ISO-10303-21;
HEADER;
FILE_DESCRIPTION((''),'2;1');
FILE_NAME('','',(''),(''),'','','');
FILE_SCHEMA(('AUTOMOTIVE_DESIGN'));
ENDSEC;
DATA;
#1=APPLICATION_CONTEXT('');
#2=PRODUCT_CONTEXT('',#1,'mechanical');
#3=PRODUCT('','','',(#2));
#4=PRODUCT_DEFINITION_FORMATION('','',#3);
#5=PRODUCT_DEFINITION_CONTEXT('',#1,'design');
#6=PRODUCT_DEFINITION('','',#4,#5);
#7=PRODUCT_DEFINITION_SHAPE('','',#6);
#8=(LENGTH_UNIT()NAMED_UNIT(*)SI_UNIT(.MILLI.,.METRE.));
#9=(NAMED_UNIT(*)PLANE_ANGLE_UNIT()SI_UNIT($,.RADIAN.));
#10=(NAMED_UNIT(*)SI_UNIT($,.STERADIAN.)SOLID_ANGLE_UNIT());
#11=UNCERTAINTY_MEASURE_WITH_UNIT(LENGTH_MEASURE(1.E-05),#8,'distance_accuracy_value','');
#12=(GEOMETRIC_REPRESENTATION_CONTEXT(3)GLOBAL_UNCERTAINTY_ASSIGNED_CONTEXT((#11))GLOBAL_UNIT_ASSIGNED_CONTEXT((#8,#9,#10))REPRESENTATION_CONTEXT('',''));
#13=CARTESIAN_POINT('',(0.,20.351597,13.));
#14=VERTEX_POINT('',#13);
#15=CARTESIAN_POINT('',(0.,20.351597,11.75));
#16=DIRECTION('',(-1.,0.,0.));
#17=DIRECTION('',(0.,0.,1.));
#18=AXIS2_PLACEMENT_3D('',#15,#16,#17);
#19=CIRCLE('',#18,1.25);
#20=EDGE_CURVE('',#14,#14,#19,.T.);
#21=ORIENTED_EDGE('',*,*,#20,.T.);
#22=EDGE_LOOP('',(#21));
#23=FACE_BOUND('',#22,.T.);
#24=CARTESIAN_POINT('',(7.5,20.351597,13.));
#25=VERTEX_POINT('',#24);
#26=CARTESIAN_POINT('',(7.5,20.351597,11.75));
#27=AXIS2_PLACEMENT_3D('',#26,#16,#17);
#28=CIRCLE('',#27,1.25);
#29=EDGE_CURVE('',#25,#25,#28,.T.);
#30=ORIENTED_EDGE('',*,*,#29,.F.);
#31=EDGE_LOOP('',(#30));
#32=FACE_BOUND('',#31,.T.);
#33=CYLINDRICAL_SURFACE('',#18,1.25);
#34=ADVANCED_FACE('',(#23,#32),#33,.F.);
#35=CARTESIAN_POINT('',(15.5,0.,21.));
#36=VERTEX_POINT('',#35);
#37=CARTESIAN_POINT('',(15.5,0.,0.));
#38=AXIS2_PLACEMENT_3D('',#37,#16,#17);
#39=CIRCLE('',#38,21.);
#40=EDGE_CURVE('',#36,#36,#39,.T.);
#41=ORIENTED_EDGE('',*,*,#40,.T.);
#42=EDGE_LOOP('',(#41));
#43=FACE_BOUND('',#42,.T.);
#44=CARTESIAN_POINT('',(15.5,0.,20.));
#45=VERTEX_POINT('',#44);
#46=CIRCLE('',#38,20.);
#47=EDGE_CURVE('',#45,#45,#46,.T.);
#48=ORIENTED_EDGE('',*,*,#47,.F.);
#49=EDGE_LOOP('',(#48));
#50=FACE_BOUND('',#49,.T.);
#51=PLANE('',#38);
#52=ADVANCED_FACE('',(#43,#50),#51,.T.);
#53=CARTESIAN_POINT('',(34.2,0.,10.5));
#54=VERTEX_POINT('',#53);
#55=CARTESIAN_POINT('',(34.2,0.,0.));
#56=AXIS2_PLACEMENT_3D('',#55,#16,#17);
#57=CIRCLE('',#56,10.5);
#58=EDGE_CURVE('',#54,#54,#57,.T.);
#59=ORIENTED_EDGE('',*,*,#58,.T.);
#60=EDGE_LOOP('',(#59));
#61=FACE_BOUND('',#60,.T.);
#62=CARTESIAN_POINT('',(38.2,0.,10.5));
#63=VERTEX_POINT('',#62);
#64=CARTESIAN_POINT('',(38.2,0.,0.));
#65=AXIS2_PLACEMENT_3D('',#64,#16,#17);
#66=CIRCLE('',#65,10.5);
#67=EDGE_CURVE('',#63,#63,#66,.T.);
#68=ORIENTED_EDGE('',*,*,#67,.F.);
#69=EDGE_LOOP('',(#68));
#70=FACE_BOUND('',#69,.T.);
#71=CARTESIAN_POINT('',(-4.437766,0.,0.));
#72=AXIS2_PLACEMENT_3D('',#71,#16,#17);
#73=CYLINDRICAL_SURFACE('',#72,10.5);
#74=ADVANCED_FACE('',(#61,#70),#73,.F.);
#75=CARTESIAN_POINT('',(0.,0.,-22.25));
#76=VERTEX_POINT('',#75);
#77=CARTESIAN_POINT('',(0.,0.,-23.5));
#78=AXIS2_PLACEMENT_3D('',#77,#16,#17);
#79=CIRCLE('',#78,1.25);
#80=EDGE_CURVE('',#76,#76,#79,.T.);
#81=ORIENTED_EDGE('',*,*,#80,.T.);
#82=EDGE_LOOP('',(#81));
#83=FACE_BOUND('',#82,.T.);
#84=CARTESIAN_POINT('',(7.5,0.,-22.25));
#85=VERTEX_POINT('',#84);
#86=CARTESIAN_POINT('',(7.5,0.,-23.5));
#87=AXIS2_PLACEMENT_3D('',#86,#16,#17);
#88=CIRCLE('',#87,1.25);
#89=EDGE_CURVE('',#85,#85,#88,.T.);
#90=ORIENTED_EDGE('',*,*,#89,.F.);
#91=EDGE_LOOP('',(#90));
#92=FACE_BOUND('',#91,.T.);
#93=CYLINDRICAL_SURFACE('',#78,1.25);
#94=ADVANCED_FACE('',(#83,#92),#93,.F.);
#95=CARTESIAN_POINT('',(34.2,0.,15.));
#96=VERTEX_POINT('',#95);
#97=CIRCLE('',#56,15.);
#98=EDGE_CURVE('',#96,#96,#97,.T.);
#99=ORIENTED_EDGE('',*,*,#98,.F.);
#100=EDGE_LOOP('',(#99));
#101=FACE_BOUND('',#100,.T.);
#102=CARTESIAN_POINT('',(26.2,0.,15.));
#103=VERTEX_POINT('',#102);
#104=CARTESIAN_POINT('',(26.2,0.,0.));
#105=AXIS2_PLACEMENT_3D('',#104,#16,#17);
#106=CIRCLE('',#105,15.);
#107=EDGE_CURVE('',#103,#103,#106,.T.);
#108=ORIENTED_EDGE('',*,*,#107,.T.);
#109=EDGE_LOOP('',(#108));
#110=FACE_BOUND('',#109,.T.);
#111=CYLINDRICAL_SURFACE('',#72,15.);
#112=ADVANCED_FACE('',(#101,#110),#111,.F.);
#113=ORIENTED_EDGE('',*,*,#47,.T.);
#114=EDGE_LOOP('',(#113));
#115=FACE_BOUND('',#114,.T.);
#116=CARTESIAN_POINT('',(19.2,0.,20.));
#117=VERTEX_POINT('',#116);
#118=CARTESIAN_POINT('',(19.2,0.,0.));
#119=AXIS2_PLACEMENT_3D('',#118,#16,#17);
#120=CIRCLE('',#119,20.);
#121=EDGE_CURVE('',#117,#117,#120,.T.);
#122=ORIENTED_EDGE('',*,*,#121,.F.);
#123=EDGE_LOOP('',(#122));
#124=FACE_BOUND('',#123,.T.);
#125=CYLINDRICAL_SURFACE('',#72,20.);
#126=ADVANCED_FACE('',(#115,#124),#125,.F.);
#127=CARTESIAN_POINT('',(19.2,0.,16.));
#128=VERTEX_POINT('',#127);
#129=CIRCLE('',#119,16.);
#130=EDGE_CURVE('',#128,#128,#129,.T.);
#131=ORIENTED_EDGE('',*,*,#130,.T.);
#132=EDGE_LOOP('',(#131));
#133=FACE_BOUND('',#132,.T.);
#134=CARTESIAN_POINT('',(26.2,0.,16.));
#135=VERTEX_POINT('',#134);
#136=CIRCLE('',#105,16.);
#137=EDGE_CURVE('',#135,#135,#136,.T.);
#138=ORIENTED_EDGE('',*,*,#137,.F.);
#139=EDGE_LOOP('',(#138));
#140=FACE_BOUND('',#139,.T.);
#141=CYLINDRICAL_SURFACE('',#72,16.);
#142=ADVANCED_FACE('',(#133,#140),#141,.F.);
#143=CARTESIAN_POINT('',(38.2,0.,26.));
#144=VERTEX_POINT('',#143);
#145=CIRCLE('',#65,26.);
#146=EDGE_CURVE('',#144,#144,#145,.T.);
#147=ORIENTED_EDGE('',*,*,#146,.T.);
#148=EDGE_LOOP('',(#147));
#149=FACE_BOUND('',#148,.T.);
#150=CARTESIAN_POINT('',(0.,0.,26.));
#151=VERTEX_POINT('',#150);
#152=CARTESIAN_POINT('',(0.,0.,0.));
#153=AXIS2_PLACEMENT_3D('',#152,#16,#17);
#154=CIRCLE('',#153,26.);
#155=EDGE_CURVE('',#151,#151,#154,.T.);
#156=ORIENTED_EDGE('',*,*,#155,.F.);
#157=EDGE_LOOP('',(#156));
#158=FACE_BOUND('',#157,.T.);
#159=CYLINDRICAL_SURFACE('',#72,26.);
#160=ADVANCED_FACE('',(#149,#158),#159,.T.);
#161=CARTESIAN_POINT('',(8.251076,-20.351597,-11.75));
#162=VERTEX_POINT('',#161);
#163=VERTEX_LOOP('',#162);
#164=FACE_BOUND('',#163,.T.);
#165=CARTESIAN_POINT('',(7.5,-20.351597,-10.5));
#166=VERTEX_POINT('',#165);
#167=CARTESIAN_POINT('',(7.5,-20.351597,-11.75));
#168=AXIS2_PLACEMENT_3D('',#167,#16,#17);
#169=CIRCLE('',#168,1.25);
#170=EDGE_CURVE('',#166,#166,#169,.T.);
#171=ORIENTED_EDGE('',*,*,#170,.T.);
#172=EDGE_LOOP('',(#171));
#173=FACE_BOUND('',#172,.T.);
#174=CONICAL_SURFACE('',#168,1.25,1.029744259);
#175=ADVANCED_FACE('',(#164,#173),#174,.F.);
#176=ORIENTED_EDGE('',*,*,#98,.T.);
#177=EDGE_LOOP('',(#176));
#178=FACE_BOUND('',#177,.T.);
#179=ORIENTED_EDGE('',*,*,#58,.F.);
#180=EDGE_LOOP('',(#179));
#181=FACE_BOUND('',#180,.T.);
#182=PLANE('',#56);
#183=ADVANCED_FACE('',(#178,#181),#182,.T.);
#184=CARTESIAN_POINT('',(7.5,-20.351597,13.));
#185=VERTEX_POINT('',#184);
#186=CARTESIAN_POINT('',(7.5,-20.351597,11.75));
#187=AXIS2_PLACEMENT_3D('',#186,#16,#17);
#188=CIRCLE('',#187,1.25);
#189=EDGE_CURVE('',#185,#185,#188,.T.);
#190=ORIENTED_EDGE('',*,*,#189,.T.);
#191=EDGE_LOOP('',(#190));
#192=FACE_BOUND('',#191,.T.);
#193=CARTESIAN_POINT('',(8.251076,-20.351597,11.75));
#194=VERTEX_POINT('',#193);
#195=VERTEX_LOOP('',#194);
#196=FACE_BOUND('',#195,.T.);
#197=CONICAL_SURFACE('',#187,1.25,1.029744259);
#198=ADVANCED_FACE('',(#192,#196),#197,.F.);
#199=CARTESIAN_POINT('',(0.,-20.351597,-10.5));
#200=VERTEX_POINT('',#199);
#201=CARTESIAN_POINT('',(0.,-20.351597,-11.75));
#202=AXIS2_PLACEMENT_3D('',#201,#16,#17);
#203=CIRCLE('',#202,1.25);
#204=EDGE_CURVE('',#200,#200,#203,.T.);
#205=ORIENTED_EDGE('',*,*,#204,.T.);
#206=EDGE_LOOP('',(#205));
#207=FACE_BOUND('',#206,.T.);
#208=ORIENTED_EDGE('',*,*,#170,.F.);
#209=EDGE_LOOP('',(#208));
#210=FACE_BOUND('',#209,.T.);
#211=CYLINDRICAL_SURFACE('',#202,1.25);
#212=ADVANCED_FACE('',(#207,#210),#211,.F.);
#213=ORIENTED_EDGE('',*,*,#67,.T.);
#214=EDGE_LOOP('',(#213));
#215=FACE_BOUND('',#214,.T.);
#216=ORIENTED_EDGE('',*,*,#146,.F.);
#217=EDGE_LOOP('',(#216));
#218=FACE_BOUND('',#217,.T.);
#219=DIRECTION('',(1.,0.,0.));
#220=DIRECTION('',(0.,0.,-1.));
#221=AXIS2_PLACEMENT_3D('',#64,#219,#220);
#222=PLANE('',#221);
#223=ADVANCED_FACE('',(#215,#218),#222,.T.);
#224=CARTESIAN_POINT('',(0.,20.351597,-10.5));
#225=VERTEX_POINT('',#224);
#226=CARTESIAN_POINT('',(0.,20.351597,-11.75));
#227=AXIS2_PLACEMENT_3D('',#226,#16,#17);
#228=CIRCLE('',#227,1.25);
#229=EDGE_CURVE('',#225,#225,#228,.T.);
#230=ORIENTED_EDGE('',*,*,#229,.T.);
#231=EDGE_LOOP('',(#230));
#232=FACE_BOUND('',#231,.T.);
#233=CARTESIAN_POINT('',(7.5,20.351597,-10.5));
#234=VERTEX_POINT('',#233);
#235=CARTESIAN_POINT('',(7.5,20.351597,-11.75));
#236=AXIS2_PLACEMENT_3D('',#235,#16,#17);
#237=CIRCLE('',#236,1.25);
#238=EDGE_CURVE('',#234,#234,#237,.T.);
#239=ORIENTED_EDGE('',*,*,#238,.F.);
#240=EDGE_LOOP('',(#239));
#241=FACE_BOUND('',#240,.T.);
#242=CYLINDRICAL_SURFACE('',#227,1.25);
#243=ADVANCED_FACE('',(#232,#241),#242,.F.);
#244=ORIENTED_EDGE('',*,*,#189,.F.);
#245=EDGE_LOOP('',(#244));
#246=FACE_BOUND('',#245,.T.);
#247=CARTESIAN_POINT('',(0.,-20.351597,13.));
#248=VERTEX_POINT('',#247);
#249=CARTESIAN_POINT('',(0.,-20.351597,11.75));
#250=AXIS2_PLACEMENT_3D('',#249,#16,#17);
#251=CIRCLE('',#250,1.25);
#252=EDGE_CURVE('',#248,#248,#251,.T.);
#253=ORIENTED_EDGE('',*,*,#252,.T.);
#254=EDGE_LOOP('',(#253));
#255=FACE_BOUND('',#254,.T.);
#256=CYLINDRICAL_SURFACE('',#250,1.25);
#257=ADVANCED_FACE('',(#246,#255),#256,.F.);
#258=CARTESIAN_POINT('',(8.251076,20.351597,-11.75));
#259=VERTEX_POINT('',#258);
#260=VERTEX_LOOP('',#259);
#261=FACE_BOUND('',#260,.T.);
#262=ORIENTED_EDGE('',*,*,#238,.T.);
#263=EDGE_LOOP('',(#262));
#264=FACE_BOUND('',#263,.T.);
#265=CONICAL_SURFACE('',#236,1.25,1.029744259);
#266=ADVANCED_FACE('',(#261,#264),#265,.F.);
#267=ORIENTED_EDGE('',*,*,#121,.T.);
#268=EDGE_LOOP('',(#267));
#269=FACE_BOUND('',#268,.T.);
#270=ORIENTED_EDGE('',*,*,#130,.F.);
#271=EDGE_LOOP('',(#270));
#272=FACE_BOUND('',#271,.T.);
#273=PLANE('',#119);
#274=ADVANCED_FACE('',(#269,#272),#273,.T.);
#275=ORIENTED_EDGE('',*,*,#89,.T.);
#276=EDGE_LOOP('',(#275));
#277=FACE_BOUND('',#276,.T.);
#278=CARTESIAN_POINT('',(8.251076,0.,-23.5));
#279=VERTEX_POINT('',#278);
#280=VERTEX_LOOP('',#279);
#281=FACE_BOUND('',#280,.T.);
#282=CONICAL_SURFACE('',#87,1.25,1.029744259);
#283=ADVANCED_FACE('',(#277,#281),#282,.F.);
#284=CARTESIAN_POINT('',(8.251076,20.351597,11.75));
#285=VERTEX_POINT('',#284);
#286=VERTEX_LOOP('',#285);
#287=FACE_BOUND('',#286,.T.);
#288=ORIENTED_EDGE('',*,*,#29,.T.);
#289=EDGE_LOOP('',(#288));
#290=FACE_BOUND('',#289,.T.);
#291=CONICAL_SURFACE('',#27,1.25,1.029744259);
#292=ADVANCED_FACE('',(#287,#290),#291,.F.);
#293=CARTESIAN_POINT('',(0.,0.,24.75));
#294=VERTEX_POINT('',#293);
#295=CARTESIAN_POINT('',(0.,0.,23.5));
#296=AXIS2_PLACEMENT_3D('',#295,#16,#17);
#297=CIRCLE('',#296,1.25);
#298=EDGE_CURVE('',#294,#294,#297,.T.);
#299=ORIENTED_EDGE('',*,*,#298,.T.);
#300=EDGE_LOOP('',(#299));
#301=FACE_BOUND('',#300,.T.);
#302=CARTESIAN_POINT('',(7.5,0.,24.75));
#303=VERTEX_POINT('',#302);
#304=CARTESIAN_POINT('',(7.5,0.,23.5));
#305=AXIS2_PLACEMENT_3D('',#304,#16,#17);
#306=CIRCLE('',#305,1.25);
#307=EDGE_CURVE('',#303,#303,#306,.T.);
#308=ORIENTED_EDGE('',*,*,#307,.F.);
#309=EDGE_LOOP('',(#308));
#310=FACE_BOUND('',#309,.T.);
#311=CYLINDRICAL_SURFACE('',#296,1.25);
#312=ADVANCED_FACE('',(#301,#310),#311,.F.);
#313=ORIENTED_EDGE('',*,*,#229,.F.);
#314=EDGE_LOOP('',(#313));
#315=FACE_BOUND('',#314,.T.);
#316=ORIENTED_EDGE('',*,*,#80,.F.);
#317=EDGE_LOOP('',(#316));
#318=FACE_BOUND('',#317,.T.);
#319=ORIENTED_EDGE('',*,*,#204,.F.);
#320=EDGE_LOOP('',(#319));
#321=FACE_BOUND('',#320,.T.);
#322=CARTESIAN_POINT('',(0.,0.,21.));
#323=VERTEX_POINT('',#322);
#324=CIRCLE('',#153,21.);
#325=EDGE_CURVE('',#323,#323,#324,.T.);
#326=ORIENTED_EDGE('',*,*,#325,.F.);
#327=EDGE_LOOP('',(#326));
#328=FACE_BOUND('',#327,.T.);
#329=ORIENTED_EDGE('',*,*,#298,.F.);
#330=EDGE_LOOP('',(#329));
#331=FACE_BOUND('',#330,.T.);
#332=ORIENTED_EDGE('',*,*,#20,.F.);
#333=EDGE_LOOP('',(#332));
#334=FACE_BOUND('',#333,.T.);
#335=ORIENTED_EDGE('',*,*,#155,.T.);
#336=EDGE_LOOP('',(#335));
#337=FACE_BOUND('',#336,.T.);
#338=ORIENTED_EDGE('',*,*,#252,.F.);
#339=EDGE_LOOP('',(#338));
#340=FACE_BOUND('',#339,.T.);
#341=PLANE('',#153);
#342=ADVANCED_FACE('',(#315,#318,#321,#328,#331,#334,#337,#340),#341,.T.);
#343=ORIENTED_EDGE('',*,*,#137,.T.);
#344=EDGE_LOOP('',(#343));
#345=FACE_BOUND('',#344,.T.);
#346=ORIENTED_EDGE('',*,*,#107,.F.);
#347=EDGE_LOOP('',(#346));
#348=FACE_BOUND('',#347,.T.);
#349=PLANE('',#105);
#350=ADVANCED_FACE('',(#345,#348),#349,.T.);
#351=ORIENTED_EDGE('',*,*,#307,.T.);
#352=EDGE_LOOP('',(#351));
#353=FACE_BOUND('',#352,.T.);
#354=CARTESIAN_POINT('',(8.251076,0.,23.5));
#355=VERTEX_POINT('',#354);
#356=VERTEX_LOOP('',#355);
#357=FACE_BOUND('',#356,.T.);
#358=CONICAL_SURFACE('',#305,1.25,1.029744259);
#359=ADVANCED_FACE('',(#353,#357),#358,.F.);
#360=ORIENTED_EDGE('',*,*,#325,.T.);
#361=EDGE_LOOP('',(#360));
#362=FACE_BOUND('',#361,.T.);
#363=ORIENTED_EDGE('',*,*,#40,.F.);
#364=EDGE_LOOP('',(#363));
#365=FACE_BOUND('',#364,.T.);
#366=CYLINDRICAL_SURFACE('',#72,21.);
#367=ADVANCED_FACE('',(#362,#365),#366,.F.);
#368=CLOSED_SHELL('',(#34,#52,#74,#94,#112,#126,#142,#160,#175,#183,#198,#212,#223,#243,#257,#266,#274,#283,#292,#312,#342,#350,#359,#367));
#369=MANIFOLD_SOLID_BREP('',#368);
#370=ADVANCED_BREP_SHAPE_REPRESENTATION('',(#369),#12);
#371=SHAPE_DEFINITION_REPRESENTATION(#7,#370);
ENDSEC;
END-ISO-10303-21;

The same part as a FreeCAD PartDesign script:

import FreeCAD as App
import Part
import Sketcher
from FreeCAD import Vector
Q = App.Units.Quantity


def add_polygon(sketch, points):
    """Adds a closed chain of lines whose ends are joined by coincident constraints."""
    first, n = sketch.GeometryCount, len(points)
    for a, b in zip(points, points[1:] + points[:1]):
        sketch.addGeometry(Part.LineSegment(App.Vector(*a, 0), App.Vector(*b, 0)), False)
    for i in range(n):
        sketch.addConstraint(Sketcher.Constraint("Coincident", first + i, 2, first + (i + 1) % n, 1))

doc = App.newDocument("Part")
params = doc.addObject("Spreadsheet::Sheet", "Params")
for row, (alias, value) in enumerate([
    ("sketch1_width", "7 mm"),
    ("sketch1_width2", "8 mm"),
    ("sketch1_width3", "4 mm"),
    ("sketch1_height", "1 mm"),
    ("sketch1_height2", "5 mm"),
    ("revolution_angle", "360 deg"),
    ("sketch2_width", "7.5 mm"),
    ("sketch2_height", "1.25 mm"),
    ("groove_angle", "360 deg"),
], start=1):
    params.set(f"A{row}", alias)
    params.set(f"B{row}", "=" + value)
    params.setAlias(f"B{row}", alias)

body = doc.addObject("PartDesign::Body", "Body")

# Sketch on XY plane
sketch1 = body.newObject("Sketcher::SketchObject", "Sketch")
sketch1.AttachmentSupport = (doc.getObject("XY_Plane"), [""])
sketch1.MapMode = "FlatFace"
add_polygon(sketch1, [(0, 21), (15.5, 21), (15.5, 20), (19.2, 20), (19.2, 16), (26.2, 16), (26.2, 15), (34.2, 15), (34.2, 10.5), (38.2, 10.5), (38.2, 26), (0, 26)])  # lines 0-11
sketch1.addConstraint([
    Sketcher.Constraint("Horizontal", 0),
    Sketcher.Constraint("Vertical", 1),
    Sketcher.Constraint("Horizontal", 2),
    Sketcher.Constraint("Vertical", 3),
    Sketcher.Constraint("Horizontal", 4),
    Sketcher.Constraint("Vertical", 5),
    Sketcher.Constraint("Horizontal", 6),
    Sketcher.Constraint("Vertical", 7),
    Sketcher.Constraint("Horizontal", 8),
    Sketcher.Constraint("Vertical", 9),
    Sketcher.Constraint("Horizontal", 10),
    Sketcher.Constraint("Vertical", 11),
    Sketcher.Constraint("PointOnObject", 10, 2, -2),
    Sketcher.Constraint("Equal", 8, 3),
    Sketcher.Constraint("Equal", 1, 5),
    Sketcher.Constraint("Equal", 0, 9),
    Sketcher.Constraint("DistanceX", 4, 1, 4, 2, 7.0),
    Sketcher.Constraint("DistanceX", 6, 1, 6, 2, 8.0),
    Sketcher.Constraint("DistanceX", 8, 1, 8, 2, 4.0),
    Sketcher.Constraint("DistanceY", 1, 2, 1, 1, 1.0),
    Sketcher.Constraint("DistanceY", 11, 2, 11, 1, 5.0),
    Sketcher.Constraint("DistanceX", 0, 1, 0, 2, 15.5),
    Sketcher.Constraint("DistanceX", 2, 1, 2, 2, 3.7),
    Sketcher.Constraint("DistanceY", -1, 1, 0, 2, 21.0),
])
sketch1.setExpression("Constraints[28]", "Params.sketch1_width")
sketch1.setExpression("Constraints[29]", "Params.sketch1_width2")
sketch1.setExpression("Constraints[30]", "Params.sketch1_width3")
sketch1.setExpression("Constraints[31]", "Params.sketch1_height")
sketch1.setExpression("Constraints[32]", "Params.sketch1_height2")
revolution = body.newObject("PartDesign::Revolution", "Revolution")
revolution.Profile = sketch1
revolution.ReferenceAxis = (sketch1, ["H_Axis"])
revolution.setExpression("Angle", "Params.revolution_angle")

# Sketch on XZ plane
sketch2 = body.newObject("Sketcher::SketchObject", "Sketch001")
sketch2.AttachmentSupport = (doc.getObject("XZ_Plane"), [""])
sketch2.MapMode = "FlatFace"
sketch2.AttachmentOffset = App.Placement(Vector(0, 0, -20.351597), App.Rotation())
add_polygon(sketch2, [(8.3, 11.8), (0, 11.8), (0, 13), (7.5, 13)])  # lines 0-3
sketch2.addGeometry(Part.LineSegment(Vector(0, 11.8, 0), Vector(8.3, 11.8, 0)), True)  # axis
sketch2.addConstraint([
    Sketcher.Constraint("Horizontal", 0),
    Sketcher.Constraint("Vertical", 1),
    Sketcher.Constraint("Horizontal", 2),
    Sketcher.Constraint("Horizontal", 4),
    Sketcher.Constraint("Coincident", 4, 1, 0, 2),
    Sketcher.Constraint("PointOnObject", 0, 2, -2),
    Sketcher.Constraint("Equal", 0, 4),
    Sketcher.Constraint("Angle", 3, Q("-59 deg")),
    Sketcher.Constraint("DistanceX", 2, 1, 2, 2, 7.5),
    Sketcher.Constraint("DistanceY", -1, 1, 1, 2, 13.0),
    Sketcher.Constraint("DistanceY", 1, 1, 1, 2, 1.25),
])
sketch2.setExpression("Constraints[12]", "Params.sketch2_width")
sketch2.setExpression("Constraints[14]", "Params.sketch2_height")
groove = body.newObject("PartDesign::Groove", "Groove")
groove.Profile = sketch2
groove.ReferenceAxis = (sketch2, ["Axis0"])
groove.setExpression("Angle", "Params.groove_angle")
doc.recompute()

polarpattern = body.newObject("PartDesign::PolarPattern", "PolarPattern")
polarpattern.Originals = [groove]
polarpattern.Axis = (doc.getObject("X_Axis"), [""])
polarpattern.Angle = 360
polarpattern.Occurrences = 6
body.Tip = polarpattern

doc.recompute()
